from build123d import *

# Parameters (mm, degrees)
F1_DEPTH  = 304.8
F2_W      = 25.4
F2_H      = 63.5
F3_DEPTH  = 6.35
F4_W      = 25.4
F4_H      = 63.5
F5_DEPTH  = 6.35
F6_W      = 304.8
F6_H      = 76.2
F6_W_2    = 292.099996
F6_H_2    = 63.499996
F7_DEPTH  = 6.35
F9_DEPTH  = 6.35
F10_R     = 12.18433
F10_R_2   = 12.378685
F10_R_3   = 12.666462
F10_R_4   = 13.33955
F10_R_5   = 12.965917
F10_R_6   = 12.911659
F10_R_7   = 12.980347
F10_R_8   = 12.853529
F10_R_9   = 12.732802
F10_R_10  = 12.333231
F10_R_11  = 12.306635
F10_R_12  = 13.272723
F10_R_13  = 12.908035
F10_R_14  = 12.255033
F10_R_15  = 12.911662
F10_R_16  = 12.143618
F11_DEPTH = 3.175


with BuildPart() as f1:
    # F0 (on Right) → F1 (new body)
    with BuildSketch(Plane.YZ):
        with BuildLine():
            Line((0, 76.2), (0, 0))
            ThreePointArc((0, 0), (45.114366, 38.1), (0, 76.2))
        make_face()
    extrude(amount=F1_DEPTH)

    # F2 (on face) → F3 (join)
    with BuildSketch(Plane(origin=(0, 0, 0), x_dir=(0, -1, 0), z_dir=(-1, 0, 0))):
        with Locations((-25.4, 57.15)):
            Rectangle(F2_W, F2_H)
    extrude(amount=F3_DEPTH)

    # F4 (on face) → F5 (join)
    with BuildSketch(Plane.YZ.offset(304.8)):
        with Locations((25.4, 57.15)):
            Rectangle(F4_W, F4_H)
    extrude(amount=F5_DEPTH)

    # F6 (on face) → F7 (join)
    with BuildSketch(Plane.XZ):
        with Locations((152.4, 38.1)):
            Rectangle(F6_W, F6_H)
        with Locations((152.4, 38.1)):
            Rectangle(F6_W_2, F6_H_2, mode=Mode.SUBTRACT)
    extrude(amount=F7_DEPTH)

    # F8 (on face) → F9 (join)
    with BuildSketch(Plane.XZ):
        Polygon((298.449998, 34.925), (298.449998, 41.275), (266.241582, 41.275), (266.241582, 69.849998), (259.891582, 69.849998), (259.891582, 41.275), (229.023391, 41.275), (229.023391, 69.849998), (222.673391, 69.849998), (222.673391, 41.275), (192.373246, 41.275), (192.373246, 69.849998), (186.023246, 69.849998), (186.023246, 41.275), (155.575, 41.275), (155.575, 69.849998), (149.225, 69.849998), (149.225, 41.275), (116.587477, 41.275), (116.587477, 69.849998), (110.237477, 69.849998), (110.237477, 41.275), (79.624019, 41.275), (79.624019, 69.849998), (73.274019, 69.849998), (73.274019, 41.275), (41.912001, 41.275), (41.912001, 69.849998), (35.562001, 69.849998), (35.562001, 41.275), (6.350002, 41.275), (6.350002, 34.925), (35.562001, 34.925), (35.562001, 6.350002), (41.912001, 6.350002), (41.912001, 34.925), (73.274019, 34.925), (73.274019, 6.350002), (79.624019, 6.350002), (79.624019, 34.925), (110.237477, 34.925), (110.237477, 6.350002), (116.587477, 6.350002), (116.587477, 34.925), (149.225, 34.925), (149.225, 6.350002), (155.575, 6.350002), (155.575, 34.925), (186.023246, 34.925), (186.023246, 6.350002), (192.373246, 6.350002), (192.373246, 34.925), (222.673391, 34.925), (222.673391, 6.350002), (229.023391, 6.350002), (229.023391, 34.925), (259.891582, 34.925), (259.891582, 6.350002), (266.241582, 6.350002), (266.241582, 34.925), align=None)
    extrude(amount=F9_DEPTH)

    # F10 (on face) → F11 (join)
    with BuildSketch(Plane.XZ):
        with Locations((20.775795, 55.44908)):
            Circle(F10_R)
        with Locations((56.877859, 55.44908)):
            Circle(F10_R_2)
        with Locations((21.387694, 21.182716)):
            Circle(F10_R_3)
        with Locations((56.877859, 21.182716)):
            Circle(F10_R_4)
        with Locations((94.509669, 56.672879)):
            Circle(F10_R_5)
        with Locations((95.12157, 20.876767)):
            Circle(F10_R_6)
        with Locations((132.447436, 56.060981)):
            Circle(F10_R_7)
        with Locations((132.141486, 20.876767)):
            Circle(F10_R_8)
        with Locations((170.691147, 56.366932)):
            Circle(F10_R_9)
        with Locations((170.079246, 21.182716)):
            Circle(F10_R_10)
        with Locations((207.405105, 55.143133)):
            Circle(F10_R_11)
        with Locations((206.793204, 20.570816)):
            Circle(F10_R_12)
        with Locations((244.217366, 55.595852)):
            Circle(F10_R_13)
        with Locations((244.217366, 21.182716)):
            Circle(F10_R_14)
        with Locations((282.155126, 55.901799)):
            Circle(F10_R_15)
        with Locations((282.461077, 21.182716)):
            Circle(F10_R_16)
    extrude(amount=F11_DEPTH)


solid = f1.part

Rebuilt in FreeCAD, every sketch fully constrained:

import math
import FreeCAD as App
import Part
import Sketcher
from FreeCAD import Vector
Q = App.Units.Quantity

doc = App.newDocument("Part")
body = doc.addObject("PartDesign::Body", "Body")

sketch1 = body.newObject("Sketcher::SketchObject", "Sketch")
sketch1.AttachmentSupport = (doc.getObject("YZ_Plane"), [""])
sketch1.MapMode = "FlatFace"
sketch1.addGeometry([
    Part.LineSegment(Vector(0, 76, 0), Vector(0, 0, 0)),
    Part.ArcOfCircle(Part.Circle(Vector(6, 38, 0), Vector(0, 0, 1), 39), math.radians(-100), math.radians(100)),
], False)
sketch1.addConstraint([
    Sketcher.Constraint("Coincident", 0, 1, 1, 2),
    Sketcher.Constraint("Coincident", 1, 1, 0, 2),
    Sketcher.Constraint("Vertical", 0),
    Sketcher.Constraint("Coincident", 1, 1, -1, 1),
    Sketcher.Constraint("DistanceY", 0, 2, 0, 1, Q("3 in")),
    Sketcher.Constraint("Radius", 1, 38.645296),
])
pad1 = body.newObject("PartDesign::Pad", "Pad")
pad1.Profile = sketch1
pad1.Length = Q("12 in")

sketch2 = body.newObject("Sketcher::SketchObject", "Sketch001")
sketch2.AttachmentSupport = (doc.getObject("YZ_Plane"), [""])
sketch2.MapMode = "FlatFace"
sketch2.addGeometry([
    Part.LineSegment(Vector(38, 89, 0), Vector(38, 25, 0)),
    Part.LineSegment(Vector(38, 25, 0), Vector(13, 25, 0)),
    Part.LineSegment(Vector(13, 25, 0), Vector(13, 89, 0)),
    Part.LineSegment(Vector(13, 89, 0), Vector(38, 89, 0)),
], False)
sketch2.addConstraint([
    Sketcher.Constraint("Coincident", 0, 2, 1, 1),
    Sketcher.Constraint("Coincident", 1, 2, 2, 1),
    Sketcher.Constraint("Coincident", 2, 2, 3, 1),
    Sketcher.Constraint("Coincident", 3, 2, 0, 1),
    Sketcher.Constraint("Vertical", 0),
    Sketcher.Constraint("Horizontal", 1),
    Sketcher.Constraint("Vertical", 2),
    Sketcher.Constraint("Horizontal", 3),
    Sketcher.Constraint("DistanceX", 1, 2, 1, 1, Q("1 in")),
    Sketcher.Constraint("DistanceY", 0, 2, 0, 1, Q("2.5 in")),
    Sketcher.Constraint("DistanceY", -1, 1, 0, 2, Q("1 in")),
    Sketcher.Constraint("DistanceX", -1, 1, 0, 2, Q("1.5 in")),
])
pad2 = body.newObject("PartDesign::Pad", "Pad001")
pad2.Profile = sketch2
pad2.Length = Q("0.25 in")
pad2.Reversed = True

sketch3 = body.newObject("Sketcher::SketchObject", "Sketch002")
sketch3.AttachmentSupport = (doc.getObject("YZ_Plane"), [""])
sketch3.MapMode = "FlatFace"
sketch3.AttachmentOffset = App.Placement(Vector(0, 0, 12 * 25.4), App.Rotation())
sketch3.addGeometry([
    Part.LineSegment(Vector(13, 89, 0), Vector(13, 25, 0)),
    Part.LineSegment(Vector(13, 25, 0), Vector(38, 25, 0)),
    Part.LineSegment(Vector(38, 25, 0), Vector(38, 89, 0)),
    Part.LineSegment(Vector(38, 89, 0), Vector(13, 89, 0)),
], False)
sketch3.addConstraint([
    Sketcher.Constraint("Coincident", 0, 2, 1, 1),
    Sketcher.Constraint("Coincident", 1, 2, 2, 1),
    Sketcher.Constraint("Coincident", 2, 2, 3, 1),
    Sketcher.Constraint("Coincident", 3, 2, 0, 1),
    Sketcher.Constraint("Vertical", 0),
    Sketcher.Constraint("Horizontal", 1),
    Sketcher.Constraint("Vertical", 2),
    Sketcher.Constraint("Horizontal", 3),
    Sketcher.Constraint("DistanceX", 1, 1, 1, 2, Q("1 in")),
    Sketcher.Constraint("DistanceY", 0, 2, 0, 1, Q("2.5 in")),
    Sketcher.Constraint("DistanceY", -1, 1, 0, 2, Q("1 in")),
    Sketcher.Constraint("DistanceX", -1, 1, 0, 2, Q("0.5 in")),
])
pad3 = body.newObject("PartDesign::Pad", "Pad002")
pad3.Profile = sketch3
pad3.Length = Q("0.25 in")

sketch4 = body.newObject("Sketcher::SketchObject", "Sketch003")
sketch4.AttachmentSupport = (doc.getObject("XZ_Plane"), [""])
sketch4.MapMode = "FlatFace"
sketch4.addGeometry([
    Part.LineSegment(Vector(0, 76, 0), Vector(0, 0, 0)),
    Part.LineSegment(Vector(0, 0, 0), Vector(305, 0, 0)),
    Part.LineSegment(Vector(305, 0, 0), Vector(305, 76, 0)),
    Part.LineSegment(Vector(305, 76, 0), Vector(0, 76, 0)),
    Part.LineSegment(Vector(298, 6, 0), Vector(6, 6, 0)),
    Part.LineSegment(Vector(6, 6, 0), Vector(6, 70, 0)),
    Part.LineSegment(Vector(6, 70, 0), Vector(298, 70, 0)),
    Part.LineSegment(Vector(298, 70, 0), Vector(298, 6, 0)),
], False)
sketch4.addConstraint([
    Sketcher.Constraint("Coincident", 0, 2, 1, 1),
    Sketcher.Constraint("Coincident", 1, 2, 2, 1),
    Sketcher.Constraint("Coincident", 2, 2, 3, 1),
    Sketcher.Constraint("Coincident", 3, 2, 0, 1),
    Sketcher.Constraint("Coincident", 4, 2, 5, 1),
    Sketcher.Constraint("Coincident", 5, 2, 6, 1),
    Sketcher.Constraint("Coincident", 6, 2, 7, 1),
    Sketcher.Constraint("Coincident", 7, 2, 4, 1),
    Sketcher.Constraint("Vertical", 0),
    Sketcher.Constraint("Horizontal", 1),
    Sketcher.Constraint("Vertical", 2),
    Sketcher.Constraint("Horizontal", 3),
    Sketcher.Constraint("Horizontal", 4),
    Sketcher.Constraint("Vertical", 5),
    Sketcher.Constraint("Horizontal", 6),
    Sketcher.Constraint("Vertical", 7),
    Sketcher.Constraint("Coincident", 0, 2, -1, 1),
    Sketcher.Constraint("DistanceX", 1, 1, 1, 2, Q("12 in")),
    Sketcher.Constraint("DistanceY", 0, 2, 0, 1, Q("3 in")),
    Sketcher.Constraint("DistanceX", 4, 2, 4, 1, Q("11.4999998 in")),
    Sketcher.Constraint("DistanceY", 5, 1, 5, 2, Q("2.4999998 in")),
    Sketcher.Constraint("DistanceX", -1, 1, 4, 2, Q("0.2500001 in")),
    Sketcher.Constraint("DistanceY", -1, 1, 4, 2, Q("0.2500001 in")),
])
pad4 = body.newObject("PartDesign::Pad", "Pad003")
pad4.Profile = sketch4
pad4.Length = Q("0.25 in")

sketch5 = body.newObject("Sketcher::SketchObject", "Sketch004")
sketch5.AttachmentSupport = (doc.getObject("XZ_Plane"), [""])
sketch5.MapMode = "FlatFace"
sketch5.addGeometry([
    Part.LineSegment(Vector(298, 35, 0), Vector(298, 41, 0)),
    Part.LineSegment(Vector(298, 41, 0), Vector(266, 41, 0)),
    Part.LineSegment(Vector(266, 41, 0), Vector(266, 70, 0)),
    Part.LineSegment(Vector(266, 70, 0), Vector(260, 70, 0)),
    Part.LineSegment(Vector(260, 70, 0), Vector(260, 41, 0)),
    Part.LineSegment(Vector(260, 41, 0), Vector(229, 41, 0)),
    Part.LineSegment(Vector(229, 41, 0), Vector(229, 70, 0)),
    Part.LineSegment(Vector(229, 70, 0), Vector(223, 70, 0)),
    Part.LineSegment(Vector(223, 70, 0), Vector(223, 41, 0)),
    Part.LineSegment(Vector(223, 41, 0), Vector(192, 41, 0)),
    Part.LineSegment(Vector(192, 41, 0), Vector(192, 70, 0)),
    Part.LineSegment(Vector(192, 70, 0), Vector(186, 70, 0)),
    Part.LineSegment(Vector(186, 70, 0), Vector(186, 41, 0)),
    Part.LineSegment(Vector(186, 41, 0), Vector(156, 41, 0)),
    Part.LineSegment(Vector(156, 41, 0), Vector(156, 70, 0)),
    Part.LineSegment(Vector(156, 70, 0), Vector(149, 70, 0)),
    Part.LineSegment(Vector(149, 70, 0), Vector(149, 41, 0)),
    Part.LineSegment(Vector(149, 41, 0), Vector(117, 41, 0)),
    Part.LineSegment(Vector(117, 41, 0), Vector(117, 70, 0)),
    Part.LineSegment(Vector(117, 70, 0), Vector(110, 70, 0)),
    Part.LineSegment(Vector(110, 70, 0), Vector(110, 41, 0)),
    Part.LineSegment(Vector(110, 41, 0), Vector(80, 41, 0)),
    Part.LineSegment(Vector(80, 41, 0), Vector(80, 70, 0)),
    Part.LineSegment(Vector(80, 70, 0), Vector(73, 70, 0)),
    Part.LineSegment(Vector(73, 70, 0), Vector(73, 41, 0)),
    Part.LineSegment(Vector(73, 41, 0), Vector(42, 41, 0)),
    Part.LineSegment(Vector(42, 41, 0), Vector(42, 70, 0)),
    Part.LineSegment(Vector(42, 70, 0), Vector(36, 70, 0)),
    Part.LineSegment(Vector(36, 70, 0), Vector(36, 41, 0)),
    Part.LineSegment(Vector(36, 41, 0), Vector(6, 41, 0)),
    Part.LineSegment(Vector(6, 41, 0), Vector(6, 35, 0)),
    Part.LineSegment(Vector(6, 35, 0), Vector(36, 35, 0)),
    Part.LineSegment(Vector(36, 35, 0), Vector(36, 6, 0)),
    Part.LineSegment(Vector(36, 6, 0), Vector(42, 6, 0)),
    Part.LineSegment(Vector(42, 6, 0), Vector(42, 35, 0)),
    Part.LineSegment(Vector(42, 35, 0), Vector(73, 35, 0)),
    Part.LineSegment(Vector(73, 35, 0), Vector(73, 6, 0)),
    Part.LineSegment(Vector(73, 6, 0), Vector(80, 6, 0)),
    Part.LineSegment(Vector(80, 6, 0), Vector(80, 35, 0)),
    Part.LineSegment(Vector(80, 35, 0), Vector(110, 35, 0)),
    Part.LineSegment(Vector(110, 35, 0), Vector(110, 6, 0)),
    Part.LineSegment(Vector(110, 6, 0), Vector(117, 6, 0)),
    Part.LineSegment(Vector(117, 6, 0), Vector(117, 35, 0)),
    Part.LineSegment(Vector(117, 35, 0), Vector(149, 35, 0)),
    Part.LineSegment(Vector(149, 35, 0), Vector(149, 6, 0)),
    Part.LineSegment(Vector(149, 6, 0), Vector(156, 6, 0)),
    Part.LineSegment(Vector(156, 6, 0), Vector(156, 35, 0)),
    Part.LineSegment(Vector(156, 35, 0), Vector(186, 35, 0)),
    Part.LineSegment(Vector(186, 35, 0), Vector(186, 6, 0)),
    Part.LineSegment(Vector(186, 6, 0), Vector(192, 6, 0)),
    Part.LineSegment(Vector(192, 6, 0), Vector(192, 35, 0)),
    Part.LineSegment(Vector(192, 35, 0), Vector(223, 35, 0)),
    Part.LineSegment(Vector(223, 35, 0), Vector(223, 6, 0)),
    Part.LineSegment(Vector(223, 6, 0), Vector(229, 6, 0)),
    Part.LineSegment(Vector(229, 6, 0), Vector(229, 35, 0)),
    Part.LineSegment(Vector(229, 35, 0), Vector(260, 35, 0)),
    Part.LineSegment(Vector(260, 35, 0), Vector(260, 6, 0)),
    Part.LineSegment(Vector(260, 6, 0), Vector(266, 6, 0)),
    Part.LineSegment(Vector(266, 6, 0), Vector(266, 35, 0)),
    Part.LineSegment(Vector(266, 35, 0), Vector(298, 35, 0)),
], False)
sketch5.addConstraint([
    Sketcher.Constraint("Coincident", 0, 2, 1, 1),
    Sketcher.Constraint("Coincident", 1, 2, 2, 1),
    Sketcher.Constraint("Coincident", 2, 2, 3, 1),
    Sketcher.Constraint("Coincident", 3, 2, 4, 1),
    Sketcher.Constraint("Coincident", 4, 2, 5, 1),
    Sketcher.Constraint("Coincident", 5, 2, 6, 1),
    Sketcher.Constraint("Coincident", 6, 2, 7, 1),
    Sketcher.Constraint("Coincident", 7, 2, 8, 1),
    Sketcher.Constraint("Coincident", 8, 2, 9, 1),
    Sketcher.Constraint("Coincident", 9, 2, 10, 1),
    Sketcher.Constraint("Coincident", 10, 2, 11, 1),
    Sketcher.Constraint("Coincident", 11, 2, 12, 1),
    Sketcher.Constraint("Coincident", 12, 2, 13, 1),
    Sketcher.Constraint("Coincident", 13, 2, 14, 1),
    Sketcher.Constraint("Coincident", 14, 2, 15, 1),
    Sketcher.Constraint("Coincident", 15, 2, 16, 1),
    Sketcher.Constraint("Coincident", 16, 2, 17, 1),
    Sketcher.Constraint("Coincident", 17, 2, 18, 1),
    Sketcher.Constraint("Coincident", 18, 2, 19, 1),
    Sketcher.Constraint("Coincident", 19, 2, 20, 1),
    Sketcher.Constraint("Coincident", 20, 2, 21, 1),
    Sketcher.Constraint("Coincident", 21, 2, 22, 1),
    Sketcher.Constraint("Coincident", 22, 2, 23, 1),
    Sketcher.Constraint("Coincident", 23, 2, 24, 1),
    Sketcher.Constraint("Coincident", 24, 2, 25, 1),
    Sketcher.Constraint("Coincident", 25, 2, 26, 1),
    Sketcher.Constraint("Coincident", 26, 2, 27, 1),
    Sketcher.Constraint("Coincident", 27, 2, 28, 1),
    Sketcher.Constraint("Coincident", 28, 2, 29, 1),
    Sketcher.Constraint("Coincident", 29, 2, 30, 1),
    Sketcher.Constraint("Coincident", 30, 2, 31, 1),
    Sketcher.Constraint("Coincident", 31, 2, 32, 1),
    Sketcher.Constraint("Coincident", 32, 2, 33, 1),
    Sketcher.Constraint("Coincident", 33, 2, 34, 1),
    Sketcher.Constraint("Coincident", 34, 2, 35, 1),
    Sketcher.Constraint("Coincident", 35, 2, 36, 1),
    Sketcher.Constraint("Coincident", 36, 2, 37, 1),
    Sketcher.Constraint("Coincident", 37, 2, 38, 1),
    Sketcher.Constraint("Coincident", 38, 2, 39, 1),
    Sketcher.Constraint("Coincident", 39, 2, 40, 1),
    Sketcher.Constraint("Coincident", 40, 2, 41, 1),
    Sketcher.Constraint("Coincident", 41, 2, 42, 1),
    Sketcher.Constraint("Coincident", 42, 2, 43, 1),
    Sketcher.Constraint("Coincident", 43, 2, 44, 1),
    Sketcher.Constraint("Coincident", 44, 2, 45, 1),
    Sketcher.Constraint("Coincident", 45, 2, 46, 1),
    Sketcher.Constraint("Coincident", 46, 2, 47, 1),
    Sketcher.Constraint("Coincident", 47, 2, 48, 1),
    Sketcher.Constraint("Coincident", 48, 2, 49, 1),
    Sketcher.Constraint("Coincident", 49, 2, 50, 1),
    Sketcher.Constraint("Coincident", 50, 2, 51, 1),
    Sketcher.Constraint("Coincident", 51, 2, 52, 1),
    Sketcher.Constraint("Coincident", 52, 2, 53, 1),
    Sketcher.Constraint("Coincident", 53, 2, 54, 1),
    Sketcher.Constraint("Coincident", 54, 2, 55, 1),
    Sketcher.Constraint("Coincident", 55, 2, 56, 1),
    Sketcher.Constraint("Coincident", 56, 2, 57, 1),
    Sketcher.Constraint("Coincident", 57, 2, 58, 1),
    Sketcher.Constraint("Coincident", 58, 2, 59, 1),
    Sketcher.Constraint("Coincident", 59, 2, 0, 1),
    Sketcher.Constraint("Vertical", 0),
    Sketcher.Constraint("Horizontal", 1),
    Sketcher.Constraint("Vertical", 2),
    Sketcher.Constraint("Horizontal", 3),
    Sketcher.Constraint("Vertical", 4),
    Sketcher.Constraint("Horizontal", 5),
    Sketcher.Constraint("Vertical", 6),
    Sketcher.Constraint("Horizontal", 7),
    Sketcher.Constraint("Vertical", 8),
    Sketcher.Constraint("Horizontal", 9),
    Sketcher.Constraint("Vertical", 10),
    Sketcher.Constraint("Horizontal", 11),
    Sketcher.Constraint("Vertical", 12),
    Sketcher.Constraint("Horizontal", 13),
    Sketcher.Constraint("Vertical", 14),
    Sketcher.Constraint("Horizontal", 15),
    Sketcher.Constraint("Vertical", 16),
    Sketcher.Constraint("Horizontal", 17),
    Sketcher.Constraint("Vertical", 18),
    Sketcher.Constraint("Horizontal", 19),
    Sketcher.Constraint("Vertical", 20),
    Sketcher.Constraint("Horizontal", 21),
    Sketcher.Constraint("Vertical", 22),
    Sketcher.Constraint("Horizontal", 23),
    Sketcher.Constraint("Vertical", 24),
    Sketcher.Constraint("Horizontal", 25),
    Sketcher.Constraint("Vertical", 26),
    Sketcher.Constraint("Horizontal", 27),
    Sketcher.Constraint("Vertical", 28),
    Sketcher.Constraint("Horizontal", 29),
    Sketcher.Constraint("Vertical", 30),
    Sketcher.Constraint("Horizontal", 31),
    Sketcher.Constraint("Vertical", 32),
    Sketcher.Constraint("Horizontal", 33),
    Sketcher.Constraint("Vertical", 34),
    Sketcher.Constraint("Horizontal", 35),
    Sketcher.Constraint("Vertical", 36),
    Sketcher.Constraint("Horizontal", 37),
    Sketcher.Constraint("Vertical", 38),
    Sketcher.Constraint("Horizontal", 39),
    Sketcher.Constraint("Vertical", 40),
    Sketcher.Constraint("Horizontal", 41),
    Sketcher.Constraint("Vertical", 42),
    Sketcher.Constraint("Horizontal", 43),
    Sketcher.Constraint("Vertical", 44),
    Sketcher.Constraint("Horizontal", 45),
    Sketcher.Constraint("Vertical", 46),
    Sketcher.Constraint("Horizontal", 47),
    Sketcher.Constraint("Vertical", 48),
    Sketcher.Constraint("Horizontal", 49),
    Sketcher.Constraint("Vertical", 50),
    Sketcher.Constraint("Horizontal", 51),
    Sketcher.Constraint("Vertical", 52),
    Sketcher.Constraint("Horizontal", 53),
    Sketcher.Constraint("Vertical", 54),
    Sketcher.Constraint("Horizontal", 55),
    Sketcher.Constraint("Vertical", 56),
    Sketcher.Constraint("Horizontal", 57),
    Sketcher.Constraint("Vertical", 58),
    Sketcher.Constraint("Horizontal", 59),
    Sketcher.Constraint("Horizontal", 1, 2, 4, 2),
    Sketcher.Constraint("Horizontal", 3, 2, 6, 2),
    Sketcher.Constraint("Horizontal", 5, 2, 8, 2),
    Sketcher.Constraint("Horizontal", 7, 2, 10, 2),
    Sketcher.Constraint("Horizontal", 9, 2, 12, 2),
    Sketcher.Constraint("Horizontal", 11, 2, 14, 2),
    Sketcher.Constraint("Horizontal", 13, 2, 16, 2),
    Sketcher.Constraint("Horizontal", 15, 2, 18, 2),
    Sketcher.Constraint("Horizontal", 17, 2, 20, 2),
    Sketcher.Constraint("Horizontal", 19, 2, 22, 2),
    Sketcher.Constraint("Horizontal", 21, 2, 24, 2),
    Sketcher.Constraint("Horizontal", 23, 2, 26, 2),
    Sketcher.Constraint("Horizontal", 25, 2, 28, 2),
    Sketcher.Constraint("Horizontal", 31, 2, 34, 2),
    Sketcher.Constraint("Horizontal", 33, 2, 36, 2),
    Sketcher.Constraint("Horizontal", 35, 2, 38, 2),
    Sketcher.Constraint("Horizontal", 37, 2, 40, 2),
    Sketcher.Constraint("Horizontal", 39, 2, 42, 2),
    Sketcher.Constraint("Horizontal", 41, 2, 44, 2),
    Sketcher.Constraint("Horizontal", 43, 2, 46, 2),
    Sketcher.Constraint("Horizontal", 45, 2, 48, 2),
    Sketcher.Constraint("Horizontal", 47, 2, 50, 2),
    Sketcher.Constraint("Horizontal", 49, 2, 52, 2),
    Sketcher.Constraint("Horizontal", 51, 2, 54, 2),
    Sketcher.Constraint("Horizontal", 53, 2, 56, 2),
    Sketcher.Constraint("Horizontal", 55, 2, 58, 2),
    Sketcher.Constraint("Vertical", 28, 2, 31, 2),
    Sketcher.Constraint("Vertical", 26, 2, 33, 2),
    Sketcher.Constraint("Vertical", 24, 2, 35, 2),
    Sketcher.Constraint("Vertical", 22, 2, 37, 2),
    Sketcher.Constraint("Vertical", 20, 2, 39, 2),
    Sketcher.Constraint("Vertical", 18, 2, 41, 2),
    Sketcher.Constraint("Vertical", 16, 2, 43, 2),
    Sketcher.Constraint("Vertical", 14, 2, 45, 2),
    Sketcher.Constraint("Vertical", 12, 2, 47, 2),
    Sketcher.Constraint("Vertical", 10, 2, 49, 2),
    Sketcher.Constraint("Vertical", 8, 2, 51, 2),
    Sketcher.Constraint("Vertical", 6, 2, 53, 2),
    Sketcher.Constraint("Vertical", 4, 2, 55, 2),
    Sketcher.Constraint("Vertical", 2, 2, 57, 2),
    Sketcher.Constraint("Equal", 3, 7),
    Sketcher.Constraint("Equal", 7, 11),
    Sketcher.Constraint("Equal", 11, 15),
    Sketcher.Constraint("Equal", 15, 19),
    Sketcher.Constraint("Equal", 19, 23),
    Sketcher.Constraint("Equal", 23, 27),
    Sketcher.Constraint("Equal", 57, 0),
    Sketcher.Constraint("Equal", 28, 32),
    Sketcher.Constraint("DistanceX", 3, 2, 3, 1, Q("0.25 in")),
    Sketcher.Constraint("DistanceY", 2, 1, 2, 2, Q("1.1249999 in")),
    Sketcher.Constraint("DistanceX", -1, 1, 0, 2, Q("11.7499999 in")),
    Sketcher.Constraint("DistanceY", -1, 1, 2, 2, Q("2.7499999 in")),
    Sketcher.Constraint("DistanceX", -1, 1, 29, 2, Q("0.2500001 in")),
    Sketcher.Constraint("DistanceX", -1, 1, 13, 2, Q("6.125 in")),
    Sketcher.Constraint("DistanceX", 29, 2, 29, 1, 29.211999),
    Sketcher.Constraint("DistanceX", 5, 2, 5, 1, 30.868191),
    Sketcher.Constraint("DistanceX", 1, 2, 1, 1, 32.208416),
    Sketcher.Constraint("DistanceX", 9, 2, 9, 1, 30.300145),
    Sketcher.Constraint("DistanceX", 17, 2, 17, 1, 32.637523),
    Sketcher.Constraint("DistanceX", 21, 2, 21, 1, 30.613458),
])
pad5 = body.newObject("PartDesign::Pad", "Pad004")
pad5.Profile = sketch5
pad5.Length = Q("0.25 in")

sketch6 = body.newObject("Sketcher::SketchObject", "Sketch005")
sketch6.AttachmentSupport = (doc.getObject("XZ_Plane"), [""])
sketch6.MapMode = "FlatFace"
sketch6.addGeometry([
    Part.Circle(Vector(21, 55, 0), Vector(0, 0, 1), 12),
    Part.Circle(Vector(57, 55, 0), Vector(0, 0, 1), 12),
    Part.Circle(Vector(21, 21, 0), Vector(0, 0, 1), 13),
    Part.Circle(Vector(57, 21, 0), Vector(0, 0, 1), 13),
    Part.Circle(Vector(95, 57, 0), Vector(0, 0, 1), 13),
    Part.Circle(Vector(95, 21, 0), Vector(0, 0, 1), 13),
    Part.Circle(Vector(132, 56, 0), Vector(0, 0, 1), 13),
    Part.Circle(Vector(132, 21, 0), Vector(0, 0, 1), 13),
    Part.Circle(Vector(171, 56, 0), Vector(0, 0, 1), 13),
    Part.Circle(Vector(170, 21, 0), Vector(0, 0, 1), 12),
    Part.Circle(Vector(207, 55, 0), Vector(0, 0, 1), 12),
    Part.Circle(Vector(207, 21, 0), Vector(0, 0, 1), 13),
    Part.Circle(Vector(244, 56, 0), Vector(0, 0, 1), 13),
    Part.Circle(Vector(244, 21, 0), Vector(0, 0, 1), 12),
    Part.Circle(Vector(282, 56, 0), Vector(0, 0, 1), 13),
    Part.Circle(Vector(282, 21, 0), Vector(0, 0, 1), 12),
], False)
sketch6.addConstraint([
    Sketcher.Constraint("Horizontal", 0, 3, 1, 3),
    Sketcher.Constraint("Horizontal", 2, 3, 3, 3),
    Sketcher.Constraint("Horizontal", 5, 3, 7, 3),
    Sketcher.Constraint("Horizontal", 3, 3, 9, 3),
    Sketcher.Constraint("Horizontal", 9, 3, 13, 3),
    Sketcher.Constraint("Horizontal", 13, 3, 15, 3),
    Sketcher.Constraint("Vertical", 1, 3, 3, 3),
    Sketcher.Constraint("Vertical", 12, 3, 13, 3),
    Sketcher.Constraint("Diameter", 3, 26.6791),
    Sketcher.Constraint("Diameter", 0, 24.36866),
    Sketcher.Constraint("Diameter", 1, 24.75737),
    Sketcher.Constraint("Diameter", 5, 25.823318),
    Sketcher.Constraint("Diameter", 7, 25.707058),
    Sketcher.Constraint("Diameter", 9, 24.666462),
    Sketcher.Constraint("Diameter", 10, 24.61327),
    Sketcher.Constraint("Diameter", 12, 25.81607),
    Sketcher.Constraint("Diameter", 2, 25.332924),
    Sketcher.Constraint("Diameter", 4, 25.931834),
    Sketcher.Constraint("Diameter", 6, 25.960694),
    Sketcher.Constraint("Diameter", 8, 25.465604),
    Sketcher.Constraint("Diameter", 11, 26.545446),
    Sketcher.Constraint("Diameter", 13, 24.510066),
    Sketcher.Constraint("Diameter", 14, 25.823324),
    Sketcher.Constraint("Diameter", 15, 24.287236),
    Sketcher.Constraint("DistanceY", -1, 1, 14, 3, 55.901799),
    Sketcher.Constraint("DistanceX", 0, 3, 2, 3, 0.611899),
    Sketcher.Constraint("DistanceY", 1, 3, 4, 3, 1.223799),
    Sketcher.Constraint("DistanceX", 4, 3, 5, 3, 0.611901),
    Sketcher.Constraint("DistanceY", 6, 3, 4, 3, 0.611898),
    Sketcher.Constraint("DistanceX", 9, 3, 8, 3, 0.611901),
    Sketcher.Constraint("DistanceY", 10, 3, 8, 3, 1.223799),
    Sketcher.Constraint("DistanceX", 11, 3, 10, 3, 0.611901),
    Sketcher.Constraint("DistanceY", 11, 3, 9, 3, 0.6119),
    Sketcher.Constraint("DistanceY", -1, 1, 0, 3, 55.44908),
    Sketcher.Constraint("DistanceX", -1, 1, 1, 3, 56.877859),
    Sketcher.Constraint("DistanceX", -1, 1, 4, 3, 94.509669),
    Sketcher.Constraint("DistanceY", -1, 1, 8, 3, 56.366932),
    Sketcher.Constraint("DistanceY", 5, 3, 3, 3, 0.305949),
    Sketcher.Constraint("DistanceX", 0, 3, 6, 3, 111.671641),
    Sketcher.Constraint("DistanceX", 7, 3, 6, 3, 0.30595),
    Sketcher.Constraint("DistanceX", 6, 3, 8, 3, 38.243711),
    Sketcher.Constraint("DistanceX", 4, 3, 8, 3, 76.181478),
    Sketcher.Constraint("DistanceX", 9, 3, 10, 3, 37.325859),
    Sketcher.Constraint("DistanceX", 10, 3, 12, 3, 36.812261),
    Sketcher.Constraint("DistanceY", 10, 3, 12, 3, 0.452719),
    Sketcher.Constraint("DistanceX", 12, 3, 14, 3, 37.93776),
    Sketcher.Constraint("DistanceX", 14, 3, 15, 3, 0.305951),
    Sketcher.Constraint("DistanceY", -1, 1, 2, 3, 21.182716),
])
pad6 = body.newObject("PartDesign::Pad", "Pad005")
pad6.Profile = sketch6
pad6.Length = Q("0.125 in")

doc.recompute()
